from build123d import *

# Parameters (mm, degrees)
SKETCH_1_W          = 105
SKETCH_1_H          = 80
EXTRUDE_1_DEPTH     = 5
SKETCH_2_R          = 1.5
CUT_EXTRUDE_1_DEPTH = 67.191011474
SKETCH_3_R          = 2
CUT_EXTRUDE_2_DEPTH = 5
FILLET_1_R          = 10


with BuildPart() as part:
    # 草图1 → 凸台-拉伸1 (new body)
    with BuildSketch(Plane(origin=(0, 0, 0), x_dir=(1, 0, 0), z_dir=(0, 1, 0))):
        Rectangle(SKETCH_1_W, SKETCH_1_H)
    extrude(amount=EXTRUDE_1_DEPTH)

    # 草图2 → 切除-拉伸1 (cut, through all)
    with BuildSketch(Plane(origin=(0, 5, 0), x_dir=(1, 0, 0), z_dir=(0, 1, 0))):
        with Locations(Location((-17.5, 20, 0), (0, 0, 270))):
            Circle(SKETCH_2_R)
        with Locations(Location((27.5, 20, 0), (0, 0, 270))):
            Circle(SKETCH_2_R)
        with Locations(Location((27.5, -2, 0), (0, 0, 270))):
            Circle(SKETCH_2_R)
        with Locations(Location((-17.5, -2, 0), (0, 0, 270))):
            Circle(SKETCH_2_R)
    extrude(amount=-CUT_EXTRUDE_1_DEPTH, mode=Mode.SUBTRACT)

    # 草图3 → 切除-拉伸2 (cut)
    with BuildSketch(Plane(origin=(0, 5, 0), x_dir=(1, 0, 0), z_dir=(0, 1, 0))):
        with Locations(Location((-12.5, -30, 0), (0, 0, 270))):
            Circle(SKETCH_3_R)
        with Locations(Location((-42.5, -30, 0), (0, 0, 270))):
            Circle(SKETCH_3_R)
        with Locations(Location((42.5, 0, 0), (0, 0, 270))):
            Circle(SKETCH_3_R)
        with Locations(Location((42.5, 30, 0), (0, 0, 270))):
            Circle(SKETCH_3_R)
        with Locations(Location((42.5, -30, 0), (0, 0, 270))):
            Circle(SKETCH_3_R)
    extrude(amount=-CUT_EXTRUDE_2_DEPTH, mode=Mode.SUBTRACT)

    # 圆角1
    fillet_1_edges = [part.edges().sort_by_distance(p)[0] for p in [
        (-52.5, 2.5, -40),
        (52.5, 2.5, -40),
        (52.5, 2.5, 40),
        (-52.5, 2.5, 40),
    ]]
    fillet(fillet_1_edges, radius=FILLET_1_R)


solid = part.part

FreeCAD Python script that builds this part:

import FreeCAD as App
import Part
import Sketcher
Q = App.Units.Quantity


def edges_at(feature, points):
    """Names of the edges that pass closest to the given points."""
    edges = feature.Shape.Edges
    near = lambda p: min(range(len(edges)), key=lambda i: edges[i].distToShape(Part.Vertex(*p))[0])
    return sorted({f"Edge{near(p) + 1}" for p in points})

doc = App.newDocument("Part")
body = doc.addObject("PartDesign::Body", "Body")

# Sketch on XZ plane
sketch1 = body.newObject("Sketcher::SketchObject", "Sketch")
sketch1.AttachmentSupport = (doc.getObject("XZ_Plane"), [""])
sketch1.MapMode = "FlatFace"
sketch1.addGeometry([
    Part.LineSegment(App.Vector(-52, -40, 0), App.Vector(-52, 40, 0)),
    Part.LineSegment(App.Vector(-52, 40, 0), App.Vector(52, 40, 0)),
    Part.LineSegment(App.Vector(52, 40, 0), App.Vector(52, -40, 0)),
    Part.LineSegment(App.Vector(52, -40, 0), App.Vector(-52, -40, 0)),
], False)
sketch1.addConstraint([
    Sketcher.Constraint("Coincident", 0, 2, 1, 1),
    Sketcher.Constraint("Coincident", 1, 2, 2, 1),
    Sketcher.Constraint("Coincident", 2, 2, 3, 1),
    Sketcher.Constraint("Coincident", 3, 2, 0, 1),
    Sketcher.Constraint("Vertical", 0),
    Sketcher.Constraint("Horizontal", 1),
    Sketcher.Constraint("Vertical", 2),
    Sketcher.Constraint("Horizontal", 3),
    Sketcher.Constraint("Symmetric", 0, 2, 2, 2, -1, 1),
    Sketcher.Constraint("DistanceX", 1, 1, 1, 2, Q("105 mm")),
    Sketcher.Constraint("DistanceY", 0, 1, 0, 2, Q("80 mm")),
])
pad1 = body.newObject("PartDesign::Pad", "Pad")
pad1.Profile = sketch1
pad1.Length = 5
pad1.Reversed = True

# Sketch on XZ plane
sketch2 = body.newObject("Sketcher::SketchObject", "Sketch001")
sketch2.AttachmentSupport = (doc.getObject("XZ_Plane"), [""])
sketch2.MapMode = "FlatFace"
sketch2.AttachmentOffset = App.Placement(App.Vector(0, 0, -5), App.Rotation())
sketch2.addGeometry([
    Part.Circle(App.Vector(-17.5, -20, 0), App.Vector(0, 0, 1), 1.5),
    Part.Circle(App.Vector(27.5, -20, 0), App.Vector(0, 0, 1), 1.5),
    Part.Circle(App.Vector(27.5, 2, 0), App.Vector(0, 0, 1), 1.5),
    Part.Circle(App.Vector(-17.5, 2, 0), App.Vector(0, 0, 1), 1.5),
], False)
sketch2.addConstraint([
    Sketcher.Constraint("Equal", 0, 1),
    Sketcher.Constraint("Equal", 1, 2),
    Sketcher.Constraint("Equal", 2, 3),
    Sketcher.Constraint("Horizontal", 0, 3, 1, 3),
    Sketcher.Constraint("Horizontal", 2, 3, 3, 3),
    Sketcher.Constraint("Vertical", 1, 3, 2, 3),
    Sketcher.Constraint("Vertical", 0, 3, 3, 3),
    Sketcher.Constraint("Diameter", 0, Q("3 mm")),
    Sketcher.Constraint("DistanceY", 0, 3, -1, 1, Q("20 mm")),
    Sketcher.Constraint("DistanceY", -1, 1, 2, 3, Q("2 mm")),
    Sketcher.Constraint("DistanceX", 0, 3, 1, 3, Q("45 mm")),
    Sketcher.Constraint("DistanceX", 0, 3, -1, 1, Q("17.5 mm")),
])
pocket1 = body.newObject("PartDesign::Pocket", "Pocket")
pocket1.Profile = sketch2
pocket1.Type = "ThroughAll"
pocket1.Reversed = True

# Sketch on XZ plane
sketch3 = body.newObject("Sketcher::SketchObject", "Sketch002")
sketch3.AttachmentSupport = (doc.getObject("XZ_Plane"), [""])
sketch3.MapMode = "FlatFace"
sketch3.AttachmentOffset = App.Placement(App.Vector(0, 0, -5), App.Rotation())
sketch3.addGeometry([
    Part.Circle(App.Vector(-12.5, 30, 0), App.Vector(0, 0, 1), 2),  # 0
    Part.Circle(App.Vector(-42.5, 30, 0), App.Vector(0, 0, 1), 2),  # 1
    Part.Circle(App.Vector(42.5, 0, 0), App.Vector(0, 0, 1), 2),  # 2
    Part.Circle(App.Vector(42.5, -30, 0), App.Vector(0, 0, 1), 2),  # 3
    Part.Circle(App.Vector(42.5, 30, 0), App.Vector(0, 0, 1), 2),  # 4
], False)
sketch3.addConstraint([
    Sketcher.Constraint("Equal", 0, 1),
    Sketcher.Constraint("Equal", 1, 2),
    Sketcher.Constraint("Equal", 2, 3),
    Sketcher.Constraint("Equal", 3, 4),
    Sketcher.Constraint("Symmetric", 1, 3, 3, 3, -1, 1),
    Sketcher.Constraint("Symmetric", 1, 3, 4, 3, -2),
    Sketcher.Constraint("PointOnObject", 2, 3, -1),
    Sketcher.Constraint("Horizontal", 0, 3, 1, 3),
    Sketcher.Constraint("Vertical", 2, 3, 3, 3),
    Sketcher.Constraint("Diameter", 0, Q("4 mm")),
    Sketcher.Constraint("DistanceY", -1, 1, 0, 3, Q("30 mm")),
    Sketcher.Constraint("DistanceX", 1, 3, 0, 3, Q("30 mm")),
    Sketcher.Constraint("DistanceX", 0, 3, 2, 3, Q("55 mm")),
])
pocket2 = body.newObject("PartDesign::Pocket", "Pocket001")
pocket2.Profile = sketch3
pocket2.Length = 5
pocket2.Reversed = True
doc.recompute()

fillet = body.newObject("PartDesign::Fillet", "Fillet")
fillet.Base = (pocket2, edges_at(pocket2, [
    (-52.5, 2.5, -40),
    (52.5, 2.5, -40),
    (52.5, 2.5, 40),
    (-52.5, 2.5, 40),
]))
fillet.Radius = 10

doc.recompute()
